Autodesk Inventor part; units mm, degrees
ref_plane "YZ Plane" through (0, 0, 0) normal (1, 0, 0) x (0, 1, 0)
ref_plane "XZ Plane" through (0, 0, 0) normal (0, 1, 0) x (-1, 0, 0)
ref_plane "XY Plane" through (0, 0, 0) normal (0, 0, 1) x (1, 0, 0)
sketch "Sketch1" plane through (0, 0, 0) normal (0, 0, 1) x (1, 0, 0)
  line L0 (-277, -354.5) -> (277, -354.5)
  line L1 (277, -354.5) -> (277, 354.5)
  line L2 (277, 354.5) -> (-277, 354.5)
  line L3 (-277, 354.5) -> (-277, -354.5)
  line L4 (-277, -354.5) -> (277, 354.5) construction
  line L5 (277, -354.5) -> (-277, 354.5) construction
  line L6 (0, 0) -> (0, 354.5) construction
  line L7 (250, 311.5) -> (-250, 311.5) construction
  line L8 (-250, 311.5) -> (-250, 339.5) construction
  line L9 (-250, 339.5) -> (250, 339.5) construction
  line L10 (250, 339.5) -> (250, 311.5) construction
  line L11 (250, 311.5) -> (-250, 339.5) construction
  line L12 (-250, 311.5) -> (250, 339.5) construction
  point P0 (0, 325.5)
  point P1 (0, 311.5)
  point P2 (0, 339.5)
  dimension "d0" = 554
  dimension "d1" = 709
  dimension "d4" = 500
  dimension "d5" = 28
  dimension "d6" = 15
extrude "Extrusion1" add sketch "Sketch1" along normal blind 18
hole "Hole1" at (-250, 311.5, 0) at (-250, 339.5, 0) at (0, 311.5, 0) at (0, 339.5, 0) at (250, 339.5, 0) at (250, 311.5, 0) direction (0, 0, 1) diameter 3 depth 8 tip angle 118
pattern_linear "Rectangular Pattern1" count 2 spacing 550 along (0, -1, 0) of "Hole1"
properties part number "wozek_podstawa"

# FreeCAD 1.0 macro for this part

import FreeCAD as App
import Part
import Sketcher


def add_polygon(sketch, points):
    """Adds a closed chain of lines whose ends are joined by coincident constraints."""
    first, n = sketch.GeometryCount, len(points)
    for a, b in zip(points, points[1:] + points[:1]):
        sketch.addGeometry(Part.LineSegment(App.Vector(*a, 0), App.Vector(*b, 0)), False)
    for i in range(n):
        sketch.addConstraint(Sketcher.Constraint("Coincident", first + i, 2, first + (i + 1) % n, 1))

doc = App.newDocument("Part")
body = doc.addObject("PartDesign::Body", "Body")

sketch1 = doc.addObject("Sketcher::SketchObject", "Sketch")
body.addObject(sketch1)
sketch1.AttachmentSupport = (doc.XY_Plane, [""])
sketch1.MapMode = "FlatFace"
add_polygon(sketch1, [(-277, 354.5), (-277, -354.5), (277, -354.5), (277, 354.5)])
sketch1.addConstraint(Sketcher.Constraint("Vertical", 0))
sketch1.addConstraint(Sketcher.Constraint("Horizontal", 1))
sketch1.addConstraint(Sketcher.Constraint("Vertical", 2))
sketch1.addConstraint(Sketcher.Constraint("Horizontal", 3))
sketch1.addConstraint(Sketcher.Constraint("Symmetric", 0, 2, 2, 2, -1, 1))
sketch1.addConstraint(Sketcher.Constraint("DistanceX", 1, 1, 1, 2, 554.0))
sketch1.addConstraint(Sketcher.Constraint("DistanceY", 0, 2, 0, 1, 709.0))
pad1 = doc.addObject("PartDesign::Pad", "Pad")
body.addObject(pad1)
pad1.Profile = sketch1
pad1.Length = 18

sketch2 = doc.addObject("Sketcher::SketchObject", "Sketch001")
body.addObject(sketch2)
sketch2.AttachmentSupport = (doc.XY_Plane, [""])
sketch2.MapMode = "FlatFace"
sketch2.addGeometry(Part.Circle(App.Vector(-250, 311.5, 0), App.Vector(0, 0, 1), 1.5), False)
sketch2.addGeometry(Part.Circle(App.Vector(-250, 339.5, 0), App.Vector(0, 0, 1), 1.5), False)
sketch2.addGeometry(Part.Circle(App.Vector(0, 311.5, 0), App.Vector(0, 0, 1), 1.5), False)
sketch2.addGeometry(Part.Circle(App.Vector(0, 339.5, 0), App.Vector(0, 0, 1), 1.5), False)
sketch2.addGeometry(Part.Circle(App.Vector(250, 339.5, 0), App.Vector(0, 0, 1), 1.5), False)
sketch2.addGeometry(Part.Circle(App.Vector(250, 311.5, 0), App.Vector(0, 0, 1), 1.5), False)
sketch2.addConstraint(Sketcher.Constraint("Equal", 0, 1))
sketch2.addConstraint(Sketcher.Constraint("Equal", 1, 2))
sketch2.addConstraint(Sketcher.Constraint("Equal", 2, 3))
sketch2.addConstraint(Sketcher.Constraint("Equal", 3, 4))
sketch2.addConstraint(Sketcher.Constraint("Equal", 4, 5))
sketch2.addConstraint(Sketcher.Constraint("Symmetric", 1, 3, 4, 3, -2))
sketch2.addConstraint(Sketcher.Constraint("Symmetric", 0, 3, 5, 3, -2))
sketch2.addConstraint(Sketcher.Constraint("PointOnObject", 2, 3, -2))
sketch2.addConstraint(Sketcher.Constraint("PointOnObject", 3, 3, -2))
sketch2.addConstraint(Sketcher.Constraint("Horizontal", 0, 3, 2, 3))
sketch2.addConstraint(Sketcher.Constraint("Horizontal", 1, 3, 3, 3))
sketch2.addConstraint(Sketcher.Constraint("Vertical", 0, 3, 1, 3))
sketch2.addConstraint(Sketcher.Constraint("Diameter", 0, 3.0))
sketch2.addConstraint(Sketcher.Constraint("DistanceX", 0, 3, -1, 1, 250.0))
sketch2.addConstraint(Sketcher.Constraint("DistanceY", 0, 3, 1, 3, 28.0))
sketch2.addConstraint(Sketcher.Constraint("DistanceY", -1, 1, 0, 3, 311.5))
doc.recompute()
hole = doc.addObject("PartDesign::Hole", "Hole")
body.addObject(hole)
hole.Profile = sketch2
hole.ThreadType = "None"
hole.Diameter = 3
hole.DepthType = "Dimension"
hole.Depth = 8
hole.DrillPoint = "Angled"
hole.DrillPointAngle = 118
hole.Reversed = True
doc.recompute()

linearpattern = doc.addObject("PartDesign::LinearPattern", "LinearPattern")
body.addObject(linearpattern)
linearpattern.Originals = [hole]
linearpattern.Direction = (doc.Y_Axis, [""])
linearpattern.Mode = "offset"
linearpattern.Offset = 550
linearpattern.Occurrences = 2
linearpattern.Reversed = True
body.Tip = linearpattern

doc.recompute()
